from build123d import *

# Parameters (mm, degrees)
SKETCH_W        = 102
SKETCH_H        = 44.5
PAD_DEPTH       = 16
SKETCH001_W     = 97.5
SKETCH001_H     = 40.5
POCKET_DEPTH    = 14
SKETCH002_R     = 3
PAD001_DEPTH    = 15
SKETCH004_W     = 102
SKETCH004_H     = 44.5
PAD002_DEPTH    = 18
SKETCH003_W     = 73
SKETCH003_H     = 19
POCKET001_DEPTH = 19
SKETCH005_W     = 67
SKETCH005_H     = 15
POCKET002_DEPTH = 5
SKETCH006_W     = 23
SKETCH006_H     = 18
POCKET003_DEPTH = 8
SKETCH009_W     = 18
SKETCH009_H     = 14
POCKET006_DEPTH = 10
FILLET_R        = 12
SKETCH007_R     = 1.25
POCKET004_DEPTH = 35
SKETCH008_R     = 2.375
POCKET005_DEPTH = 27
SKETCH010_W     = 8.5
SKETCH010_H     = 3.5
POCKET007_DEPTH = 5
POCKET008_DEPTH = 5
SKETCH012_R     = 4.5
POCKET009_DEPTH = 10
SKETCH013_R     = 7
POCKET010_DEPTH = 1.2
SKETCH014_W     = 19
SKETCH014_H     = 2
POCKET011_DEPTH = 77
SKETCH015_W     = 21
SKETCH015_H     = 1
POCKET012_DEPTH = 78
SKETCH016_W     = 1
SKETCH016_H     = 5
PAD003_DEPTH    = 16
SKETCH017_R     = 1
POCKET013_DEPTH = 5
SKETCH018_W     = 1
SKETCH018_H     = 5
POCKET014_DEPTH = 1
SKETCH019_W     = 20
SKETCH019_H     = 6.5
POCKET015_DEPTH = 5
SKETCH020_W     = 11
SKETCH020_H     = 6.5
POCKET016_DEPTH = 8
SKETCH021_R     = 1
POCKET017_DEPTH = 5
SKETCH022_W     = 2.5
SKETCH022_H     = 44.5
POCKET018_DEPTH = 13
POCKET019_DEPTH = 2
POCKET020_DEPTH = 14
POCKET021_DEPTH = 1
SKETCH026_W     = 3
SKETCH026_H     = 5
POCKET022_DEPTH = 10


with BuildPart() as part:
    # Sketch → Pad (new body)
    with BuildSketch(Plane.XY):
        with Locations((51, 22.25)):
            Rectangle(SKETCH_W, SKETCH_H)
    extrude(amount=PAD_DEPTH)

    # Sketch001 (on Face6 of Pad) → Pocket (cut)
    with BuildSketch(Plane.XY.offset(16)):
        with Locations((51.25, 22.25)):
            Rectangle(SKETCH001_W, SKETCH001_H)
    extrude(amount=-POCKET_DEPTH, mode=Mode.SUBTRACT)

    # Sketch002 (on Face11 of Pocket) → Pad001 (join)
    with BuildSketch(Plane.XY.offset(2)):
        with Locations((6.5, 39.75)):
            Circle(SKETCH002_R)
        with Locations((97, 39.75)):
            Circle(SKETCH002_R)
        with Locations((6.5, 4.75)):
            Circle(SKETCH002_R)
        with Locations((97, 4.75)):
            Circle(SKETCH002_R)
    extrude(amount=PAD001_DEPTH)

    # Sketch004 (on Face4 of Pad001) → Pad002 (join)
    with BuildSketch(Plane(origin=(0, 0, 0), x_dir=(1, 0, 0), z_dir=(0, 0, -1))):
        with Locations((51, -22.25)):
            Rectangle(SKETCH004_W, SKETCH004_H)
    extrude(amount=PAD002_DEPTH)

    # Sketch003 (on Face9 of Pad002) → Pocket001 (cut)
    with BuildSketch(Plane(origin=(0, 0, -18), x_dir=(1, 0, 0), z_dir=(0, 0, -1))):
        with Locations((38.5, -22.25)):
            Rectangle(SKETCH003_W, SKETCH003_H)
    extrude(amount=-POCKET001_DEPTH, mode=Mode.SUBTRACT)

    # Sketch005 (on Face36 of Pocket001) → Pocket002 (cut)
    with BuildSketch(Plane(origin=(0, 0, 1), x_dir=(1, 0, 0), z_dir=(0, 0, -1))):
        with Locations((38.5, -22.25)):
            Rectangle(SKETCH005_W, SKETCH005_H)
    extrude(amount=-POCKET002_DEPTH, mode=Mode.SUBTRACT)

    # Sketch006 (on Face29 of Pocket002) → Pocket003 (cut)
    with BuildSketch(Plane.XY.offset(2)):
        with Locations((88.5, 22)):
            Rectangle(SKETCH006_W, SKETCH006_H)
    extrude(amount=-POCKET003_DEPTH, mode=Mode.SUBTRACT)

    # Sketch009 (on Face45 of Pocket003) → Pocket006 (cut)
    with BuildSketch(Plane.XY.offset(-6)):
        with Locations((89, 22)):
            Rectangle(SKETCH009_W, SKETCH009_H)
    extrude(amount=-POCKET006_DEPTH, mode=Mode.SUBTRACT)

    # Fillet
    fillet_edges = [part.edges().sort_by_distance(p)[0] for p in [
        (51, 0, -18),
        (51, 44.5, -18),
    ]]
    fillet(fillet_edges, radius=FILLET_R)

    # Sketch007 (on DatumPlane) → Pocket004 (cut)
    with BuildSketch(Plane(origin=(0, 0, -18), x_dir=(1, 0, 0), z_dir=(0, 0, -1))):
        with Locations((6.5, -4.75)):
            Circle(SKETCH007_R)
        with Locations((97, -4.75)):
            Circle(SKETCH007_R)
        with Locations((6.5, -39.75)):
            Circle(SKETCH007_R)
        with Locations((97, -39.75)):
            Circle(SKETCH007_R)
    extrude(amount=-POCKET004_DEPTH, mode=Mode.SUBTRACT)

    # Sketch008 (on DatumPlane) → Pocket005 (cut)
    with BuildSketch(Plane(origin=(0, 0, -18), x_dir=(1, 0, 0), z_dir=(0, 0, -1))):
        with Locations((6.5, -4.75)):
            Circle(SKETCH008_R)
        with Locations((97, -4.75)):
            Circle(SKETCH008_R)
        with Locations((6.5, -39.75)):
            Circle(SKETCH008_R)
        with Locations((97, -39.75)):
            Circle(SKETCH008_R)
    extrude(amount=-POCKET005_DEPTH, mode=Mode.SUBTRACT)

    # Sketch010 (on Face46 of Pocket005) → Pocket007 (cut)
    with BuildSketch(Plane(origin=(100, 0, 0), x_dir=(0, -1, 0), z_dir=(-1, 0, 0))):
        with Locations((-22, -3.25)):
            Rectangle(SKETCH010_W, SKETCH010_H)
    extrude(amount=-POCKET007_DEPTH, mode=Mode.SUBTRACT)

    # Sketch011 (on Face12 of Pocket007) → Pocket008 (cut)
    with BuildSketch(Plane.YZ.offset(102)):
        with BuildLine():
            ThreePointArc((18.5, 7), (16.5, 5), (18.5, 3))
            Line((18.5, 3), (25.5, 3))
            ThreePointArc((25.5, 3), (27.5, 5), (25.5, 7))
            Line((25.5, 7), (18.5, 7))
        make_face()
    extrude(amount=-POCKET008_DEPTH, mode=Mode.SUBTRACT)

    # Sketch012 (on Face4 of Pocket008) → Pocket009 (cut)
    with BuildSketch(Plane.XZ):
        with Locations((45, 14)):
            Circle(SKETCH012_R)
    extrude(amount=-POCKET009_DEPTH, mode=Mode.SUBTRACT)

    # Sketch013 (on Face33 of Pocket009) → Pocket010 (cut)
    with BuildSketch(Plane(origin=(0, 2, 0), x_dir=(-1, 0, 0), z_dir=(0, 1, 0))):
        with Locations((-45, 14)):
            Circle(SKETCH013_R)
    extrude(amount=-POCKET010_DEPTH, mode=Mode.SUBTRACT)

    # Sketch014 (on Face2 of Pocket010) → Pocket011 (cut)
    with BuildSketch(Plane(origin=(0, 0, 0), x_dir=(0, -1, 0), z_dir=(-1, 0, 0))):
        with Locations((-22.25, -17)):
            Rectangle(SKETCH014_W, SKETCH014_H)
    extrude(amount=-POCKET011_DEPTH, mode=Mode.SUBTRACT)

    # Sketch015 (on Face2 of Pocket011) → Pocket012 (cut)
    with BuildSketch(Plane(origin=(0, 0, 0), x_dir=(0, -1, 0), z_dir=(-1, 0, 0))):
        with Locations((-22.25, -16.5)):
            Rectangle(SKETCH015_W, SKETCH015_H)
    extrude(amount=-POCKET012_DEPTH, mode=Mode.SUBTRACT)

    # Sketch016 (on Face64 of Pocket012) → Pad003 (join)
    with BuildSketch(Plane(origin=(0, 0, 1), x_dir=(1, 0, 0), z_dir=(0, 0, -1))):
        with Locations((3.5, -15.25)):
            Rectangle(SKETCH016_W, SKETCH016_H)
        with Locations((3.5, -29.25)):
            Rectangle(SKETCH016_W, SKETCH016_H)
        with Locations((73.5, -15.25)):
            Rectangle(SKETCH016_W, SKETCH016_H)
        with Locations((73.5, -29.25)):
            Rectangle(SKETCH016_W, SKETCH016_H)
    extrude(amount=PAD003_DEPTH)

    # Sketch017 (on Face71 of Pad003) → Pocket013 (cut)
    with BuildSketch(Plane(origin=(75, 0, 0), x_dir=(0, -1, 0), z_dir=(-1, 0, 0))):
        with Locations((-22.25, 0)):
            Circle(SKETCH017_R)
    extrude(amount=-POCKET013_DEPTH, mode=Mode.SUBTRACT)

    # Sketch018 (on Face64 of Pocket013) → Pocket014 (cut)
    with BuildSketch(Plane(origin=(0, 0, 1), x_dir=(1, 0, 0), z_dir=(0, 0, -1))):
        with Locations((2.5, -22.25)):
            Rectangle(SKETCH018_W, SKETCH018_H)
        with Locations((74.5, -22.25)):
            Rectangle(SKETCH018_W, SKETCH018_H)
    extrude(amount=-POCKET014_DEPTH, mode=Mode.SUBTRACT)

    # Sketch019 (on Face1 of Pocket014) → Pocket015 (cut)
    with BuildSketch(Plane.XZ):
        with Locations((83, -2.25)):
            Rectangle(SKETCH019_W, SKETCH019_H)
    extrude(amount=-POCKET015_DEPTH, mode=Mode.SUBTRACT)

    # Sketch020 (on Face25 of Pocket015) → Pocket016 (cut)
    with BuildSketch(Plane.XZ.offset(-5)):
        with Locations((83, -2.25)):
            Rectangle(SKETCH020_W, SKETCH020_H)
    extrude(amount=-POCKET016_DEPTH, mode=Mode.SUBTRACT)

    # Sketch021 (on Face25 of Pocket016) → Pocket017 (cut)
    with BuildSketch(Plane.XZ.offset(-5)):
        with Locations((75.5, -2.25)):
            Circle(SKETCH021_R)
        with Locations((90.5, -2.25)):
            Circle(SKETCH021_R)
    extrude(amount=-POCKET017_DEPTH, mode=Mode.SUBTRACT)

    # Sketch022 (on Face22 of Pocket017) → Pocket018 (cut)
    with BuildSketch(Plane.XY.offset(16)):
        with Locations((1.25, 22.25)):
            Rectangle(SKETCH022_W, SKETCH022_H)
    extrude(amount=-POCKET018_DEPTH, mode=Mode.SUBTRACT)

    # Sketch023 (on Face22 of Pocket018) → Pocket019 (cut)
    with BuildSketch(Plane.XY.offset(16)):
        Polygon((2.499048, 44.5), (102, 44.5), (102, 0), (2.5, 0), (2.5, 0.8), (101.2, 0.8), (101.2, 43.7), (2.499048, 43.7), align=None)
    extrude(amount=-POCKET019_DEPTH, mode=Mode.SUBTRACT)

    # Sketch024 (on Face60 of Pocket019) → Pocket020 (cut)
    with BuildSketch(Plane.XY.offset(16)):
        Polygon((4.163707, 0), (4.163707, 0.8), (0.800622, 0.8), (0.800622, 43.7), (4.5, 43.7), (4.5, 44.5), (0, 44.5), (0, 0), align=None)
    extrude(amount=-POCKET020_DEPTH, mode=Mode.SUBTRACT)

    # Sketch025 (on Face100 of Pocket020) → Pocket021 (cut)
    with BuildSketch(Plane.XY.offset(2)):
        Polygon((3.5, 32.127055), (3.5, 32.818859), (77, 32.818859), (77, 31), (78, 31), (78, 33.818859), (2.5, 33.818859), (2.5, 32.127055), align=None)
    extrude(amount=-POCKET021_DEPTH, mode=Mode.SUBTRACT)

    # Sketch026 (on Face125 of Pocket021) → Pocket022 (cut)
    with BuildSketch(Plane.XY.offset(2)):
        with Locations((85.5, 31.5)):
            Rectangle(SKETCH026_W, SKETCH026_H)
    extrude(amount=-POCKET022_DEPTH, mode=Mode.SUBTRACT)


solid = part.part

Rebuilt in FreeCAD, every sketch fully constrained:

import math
import FreeCAD as App
import Part
import Sketcher

V = App.Vector


def edges_at(feature, points):
    """Names of the edges that pass closest to the given points."""
    edges = feature.Shape.Edges
    near = lambda p: min(range(len(edges)), key=lambda i: edges[i].distToShape(Part.Vertex(*p))[0])
    return sorted({f"Edge{near(p) + 1}" for p in points})

doc = App.newDocument("Part")
body = doc.addObject("PartDesign::Body", "Body")

sketch1 = body.newObject("Sketcher::SketchObject", "Sketch")
sketch1.AttachmentSupport = (doc.getObject("XY_Plane"), [""])
sketch1.MapMode = "FlatFace"
sketch1.addGeometry([
    Part.LineSegment(V(0, 44, 0), V(0, 0, 0)),
    Part.LineSegment(V(0, 0, 0), V(102, 0, 0)),
    Part.LineSegment(V(102, 0, 0), V(102, 44, 0)),
    Part.LineSegment(V(102, 44, 0), V(0, 44, 0)),
], False)
sketch1.addConstraint([
    Sketcher.Constraint("Coincident", 0, 2, 1, 1),
    Sketcher.Constraint("Coincident", 1, 2, 2, 1),
    Sketcher.Constraint("Coincident", 2, 2, 3, 1),
    Sketcher.Constraint("Coincident", 3, 2, 0, 1),
    Sketcher.Constraint("Vertical", 0),
    Sketcher.Constraint("Horizontal", 1),
    Sketcher.Constraint("Vertical", 2),
    Sketcher.Constraint("Horizontal", 3),
    Sketcher.Constraint("Coincident", 0, 2, -1, 1),
    Sketcher.Constraint("DistanceX", 1, 1, 1, 2, 102.0),
    Sketcher.Constraint("DistanceY", 0, 2, 0, 1, 44.5),
])
pad1 = body.newObject("PartDesign::Pad", "Pad")
pad1.Profile = sketch1
pad1.Length = 16

sketch2 = body.newObject("Sketcher::SketchObject", "Sketch001")
sketch2.AttachmentSupport = (doc.getObject("XY_Plane"), [""])
sketch2.MapMode = "FlatFace"
sketch2.AttachmentOffset = App.Placement(V(0, 0, 16), App.Rotation())
sketch2.addGeometry([
    Part.LineSegment(V(2, 42, 0), V(2, 2, 0)),
    Part.LineSegment(V(2, 2, 0), V(100, 2, 0)),
    Part.LineSegment(V(100, 2, 0), V(100, 42, 0)),
    Part.LineSegment(V(100, 42, 0), V(2, 42, 0)),
], False)
sketch2.addConstraint([
    Sketcher.Constraint("Coincident", 0, 2, 1, 1),
    Sketcher.Constraint("Coincident", 1, 2, 2, 1),
    Sketcher.Constraint("Coincident", 2, 2, 3, 1),
    Sketcher.Constraint("Coincident", 3, 2, 0, 1),
    Sketcher.Constraint("Vertical", 0),
    Sketcher.Constraint("Horizontal", 1),
    Sketcher.Constraint("Vertical", 2),
    Sketcher.Constraint("Horizontal", 3),
    Sketcher.Constraint("DistanceX", 1, 1, 1, 2, 97.5),
    Sketcher.Constraint("DistanceY", 0, 2, 0, 1, 40.5),
    Sketcher.Constraint("DistanceY", -1, 1, 0, 2, 2.0),
    Sketcher.Constraint("DistanceX", -1, 1, 1, 2, 100.0),
])
pocket1 = body.newObject("PartDesign::Pocket", "Pocket")
pocket1.Profile = sketch2
pocket1.Length = 14

sketch3 = body.newObject("Sketcher::SketchObject", "Sketch002")
sketch3.AttachmentSupport = (doc.getObject("XY_Plane"), [""])
sketch3.MapMode = "FlatFace"
sketch3.AttachmentOffset = App.Placement(V(0, 0, 2), App.Rotation())
sketch3.addGeometry([
    Part.Circle(V(6.5, 39.8, 0), V(0, 0, 1), 3),
    Part.Circle(V(97, 39.8, 0), V(0, 0, 1), 3),
    Part.Circle(V(6.5, 4.8, 0), V(0, 0, 1), 3),
    Part.Circle(V(97, 4.8, 0), V(0, 0, 1), 3),
], False)
sketch3.addConstraint([
    Sketcher.Constraint("Equal", 0, 1),
    Sketcher.Constraint("Equal", 1, 2),
    Sketcher.Constraint("Equal", 2, 3),
    Sketcher.Constraint("Horizontal", 0, 3, 1, 3),
    Sketcher.Constraint("Horizontal", 2, 3, 3, 3),
    Sketcher.Constraint("Vertical", 0, 3, 2, 3),
    Sketcher.Constraint("Vertical", 1, 3, 3, 3),
    Sketcher.Constraint("Diameter", 0, 6.0),
    Sketcher.Constraint("DistanceX", -1, 1, 1, 3, 97.0),
    Sketcher.Constraint("DistanceY", 2, 3, 0, 3, 35.0),
    Sketcher.Constraint("DistanceX", -1, 1, 0, 3, 6.5),
    Sketcher.Constraint("DistanceY", -1, 1, 0, 3, 39.75),
])
pad2 = body.newObject("PartDesign::Pad", "Pad001")
pad2.Profile = sketch3
pad2.Length = 15

sketch4 = body.newObject("Sketcher::SketchObject", "Sketch003")
sketch4.AttachmentSupport = (doc.getObject("XY_Plane"), [""])
sketch4.MapMode = "FlatFace"
sketch4.addGeometry([
    Part.LineSegment(V(0, 0, 0), V(0, 44, 0)),
    Part.LineSegment(V(0, 44, 0), V(102, 44, 0)),
    Part.LineSegment(V(102, 44, 0), V(102, 0, 0)),
    Part.LineSegment(V(102, 0, 0), V(0, 0, 0)),
], False)
sketch4.addConstraint([
    Sketcher.Constraint("Coincident", 0, 2, 1, 1),
    Sketcher.Constraint("Coincident", 1, 2, 2, 1),
    Sketcher.Constraint("Coincident", 2, 2, 3, 1),
    Sketcher.Constraint("Coincident", 3, 2, 0, 1),
    Sketcher.Constraint("Vertical", 0),
    Sketcher.Constraint("Horizontal", 1),
    Sketcher.Constraint("Vertical", 2),
    Sketcher.Constraint("Horizontal", 3),
    Sketcher.Constraint("Coincident", 3, 2, -1, 1),
    Sketcher.Constraint("DistanceX", 1, 1, 1, 2, 102.0),
    Sketcher.Constraint("DistanceY", 0, 1, 0, 2, 44.5),
])
pad3 = body.newObject("PartDesign::Pad", "Pad002")
pad3.Profile = sketch4
pad3.Length = 18
pad3.Reversed = True

sketch5 = body.newObject("Sketcher::SketchObject", "Sketch004")
sketch5.AttachmentSupport = (doc.getObject("XY_Plane"), [""])
sketch5.MapMode = "FlatFace"
sketch5.AttachmentOffset = App.Placement(V(0, 0, -18), App.Rotation())
sketch5.addGeometry([
    Part.LineSegment(V(2, 13, 0), V(2, 32, 0)),
    Part.LineSegment(V(2, 32, 0), V(75, 32, 0)),
    Part.LineSegment(V(75, 32, 0), V(75, 13, 0)),
    Part.LineSegment(V(75, 13, 0), V(2, 13, 0)),
], False)
sketch5.addConstraint([
    Sketcher.Constraint("Coincident", 0, 2, 1, 1),
    Sketcher.Constraint("Coincident", 1, 2, 2, 1),
    Sketcher.Constraint("Coincident", 2, 2, 3, 1),
    Sketcher.Constraint("Coincident", 3, 2, 0, 1),
    Sketcher.Constraint("Vertical", 0),
    Sketcher.Constraint("Horizontal", 1),
    Sketcher.Constraint("Vertical", 2),
    Sketcher.Constraint("Horizontal", 3),
    Sketcher.Constraint("DistanceX", 1, 1, 1, 2, 73.0),
    Sketcher.Constraint("DistanceY", 0, 1, 0, 2, 19.0),
    Sketcher.Constraint("DistanceX", -1, 1, 0, 2, 2.0),
    Sketcher.Constraint("DistanceY", -1, 1, 0, 2, 31.75),
])
pocket2 = body.newObject("PartDesign::Pocket", "Pocket001")
pocket2.Profile = sketch5
pocket2.Length = 19
pocket2.Reversed = True

sketch6 = body.newObject("Sketcher::SketchObject", "Sketch005")
sketch6.AttachmentSupport = (doc.getObject("XY_Plane"), [""])
sketch6.MapMode = "FlatFace"
sketch6.AttachmentOffset = App.Placement(V(0, 0, 1), App.Rotation())
sketch6.addGeometry([
    Part.LineSegment(V(5, 15, 0), V(5, 30, 0)),
    Part.LineSegment(V(5, 30, 0), V(72, 30, 0)),
    Part.LineSegment(V(72, 30, 0), V(72, 15, 0)),
    Part.LineSegment(V(72, 15, 0), V(5, 15, 0)),
], False)
sketch6.addConstraint([
    Sketcher.Constraint("Coincident", 0, 2, 1, 1),
    Sketcher.Constraint("Coincident", 1, 2, 2, 1),
    Sketcher.Constraint("Coincident", 2, 2, 3, 1),
    Sketcher.Constraint("Coincident", 3, 2, 0, 1),
    Sketcher.Constraint("Vertical", 0),
    Sketcher.Constraint("Horizontal", 1),
    Sketcher.Constraint("Vertical", 2),
    Sketcher.Constraint("Horizontal", 3),
    Sketcher.Constraint("DistanceX", 1, 1, 1, 2, 67.0),
    Sketcher.Constraint("DistanceY", 0, 1, 0, 2, 15.0),
    Sketcher.Constraint("DistanceX", -1, 1, 0, 2, 5.0),
    Sketcher.Constraint("DistanceY", -1, 1, 0, 2, 29.75),
])
pocket3 = body.newObject("PartDesign::Pocket", "Pocket002")
pocket3.Profile = sketch6
pocket3.Length = 5
pocket3.Reversed = True

sketch7 = body.newObject("Sketcher::SketchObject", "Sketch006")
sketch7.AttachmentSupport = (doc.getObject("XY_Plane"), [""])
sketch7.MapMode = "FlatFace"
sketch7.AttachmentOffset = App.Placement(V(0, 0, 2), App.Rotation())
sketch7.addGeometry([
    Part.LineSegment(V(77, 31, 0), V(77, 13, 0)),
    Part.LineSegment(V(77, 13, 0), V(100, 13, 0)),
    Part.LineSegment(V(100, 13, 0), V(100, 31, 0)),
    Part.LineSegment(V(100, 31, 0), V(77, 31, 0)),
], False)
sketch7.addConstraint([
    Sketcher.Constraint("Coincident", 0, 2, 1, 1),
    Sketcher.Constraint("Coincident", 1, 2, 2, 1),
    Sketcher.Constraint("Coincident", 2, 2, 3, 1),
    Sketcher.Constraint("Coincident", 3, 2, 0, 1),
    Sketcher.Constraint("Vertical", 0),
    Sketcher.Constraint("Horizontal", 1),
    Sketcher.Constraint("Vertical", 2),
    Sketcher.Constraint("Horizontal", 3),
    Sketcher.Constraint("DistanceX", 1, 1, 1, 2, 23.0),
    Sketcher.Constraint("DistanceY", 0, 2, 0, 1, 18.0),
    Sketcher.Constraint("DistanceX", -1, 1, 0, 2, 77.0),
    Sketcher.Constraint("DistanceY", -1, 1, 0, 2, 13.0),
])
pocket4 = body.newObject("PartDesign::Pocket", "Pocket003")
pocket4.Profile = sketch7
pocket4.Length = 8

sketch8 = body.newObject("Sketcher::SketchObject", "Sketch007")
sketch8.AttachmentSupport = (doc.getObject("XY_Plane"), [""])
sketch8.MapMode = "FlatFace"
sketch8.AttachmentOffset = App.Placement(V(0, 0, -6), App.Rotation())
sketch8.addGeometry([
    Part.LineSegment(V(80, 29, 0), V(80, 15, 0)),
    Part.LineSegment(V(80, 15, 0), V(98, 15, 0)),
    Part.LineSegment(V(98, 15, 0), V(98, 29, 0)),
    Part.LineSegment(V(98, 29, 0), V(80, 29, 0)),
], False)
sketch8.addConstraint([
    Sketcher.Constraint("Coincident", 0, 2, 1, 1),
    Sketcher.Constraint("Coincident", 1, 2, 2, 1),
    Sketcher.Constraint("Coincident", 2, 2, 3, 1),
    Sketcher.Constraint("Coincident", 3, 2, 0, 1),
    Sketcher.Constraint("Vertical", 0),
    Sketcher.Constraint("Horizontal", 1),
    Sketcher.Constraint("Vertical", 2),
    Sketcher.Constraint("Horizontal", 3),
    Sketcher.Constraint("DistanceX", 1, 1, 1, 2, 18.0),
    Sketcher.Constraint("DistanceY", 0, 2, 0, 1, 14.0),
    Sketcher.Constraint("DistanceX", -1, 1, 0, 2, 80.0),
    Sketcher.Constraint("DistanceY", -1, 1, 0, 2, 15.0),
])
pocket5 = body.newObject("PartDesign::Pocket", "Pocket004")
pocket5.Profile = sketch8
pocket5.Length = 10
doc.recompute()

fillet = body.newObject("PartDesign::Fillet", "Fillet")
fillet.Base = (pocket5, edges_at(pocket5, [(51, 0, -18), (51, 44.5, -18)]))
fillet.Radius = 12

sketch9 = body.newObject("Sketcher::SketchObject", "Sketch008")
sketch9.AttachmentSupport = (doc.getObject("XY_Plane"), [""])
sketch9.MapMode = "FlatFace"
sketch9.AttachmentOffset = App.Placement(V(0, 0, -18), App.Rotation())
sketch9.addGeometry([
    Part.Circle(V(6.5, 4.8, 0), V(0, 0, 1), 1.2),
    Part.Circle(V(97, 4.8, 0), V(0, 0, 1), 1.2),
    Part.Circle(V(6.5, 39.8, 0), V(0, 0, 1), 1.2),
    Part.Circle(V(97, 39.8, 0), V(0, 0, 1), 1.2),
], False)
sketch9.addConstraint([
    Sketcher.Constraint("Equal", 0, 1),
    Sketcher.Constraint("Equal", 1, 2),
    Sketcher.Constraint("Equal", 2, 3),
    Sketcher.Constraint("Horizontal", 0, 3, 1, 3),
    Sketcher.Constraint("Horizontal", 2, 3, 3, 3),
    Sketcher.Constraint("Vertical", 0, 3, 2, 3),
    Sketcher.Constraint("Vertical", 1, 3, 3, 3),
    Sketcher.Constraint("Diameter", 0, 2.5),
    Sketcher.Constraint("DistanceX", -1, 1, 1, 3, 97.0),
    Sketcher.Constraint("DistanceY", 0, 3, 2, 3, 35.0),
    Sketcher.Constraint("DistanceX", -1, 1, 0, 3, 6.5),
    Sketcher.Constraint("DistanceY", -1, 1, 0, 3, 4.75),
])
pocket6 = body.newObject("PartDesign::Pocket", "Pocket005")
pocket6.Profile = sketch9
pocket6.Length = 35
pocket6.Reversed = True

sketch10 = body.newObject("Sketcher::SketchObject", "Sketch009")
sketch10.AttachmentSupport = (doc.getObject("XY_Plane"), [""])
sketch10.MapMode = "FlatFace"
sketch10.AttachmentOffset = App.Placement(V(0, 0, -18), App.Rotation())
sketch10.addGeometry([
    Part.Circle(V(6.5, 4.8, 0), V(0, 0, 1), 2.4),
    Part.Circle(V(97, 4.8, 0), V(0, 0, 1), 2.4),
    Part.Circle(V(6.5, 39.8, 0), V(0, 0, 1), 2.4),
    Part.Circle(V(97, 39.8, 0), V(0, 0, 1), 2.4),
], False)
sketch10.addConstraint([
    Sketcher.Constraint("Equal", 0, 1),
    Sketcher.Constraint("Equal", 1, 2),
    Sketcher.Constraint("Equal", 2, 3),
    Sketcher.Constraint("Horizontal", 0, 3, 1, 3),
    Sketcher.Constraint("Horizontal", 2, 3, 3, 3),
    Sketcher.Constraint("Vertical", 0, 3, 2, 3),
    Sketcher.Constraint("Vertical", 1, 3, 3, 3),
    Sketcher.Constraint("Diameter", 0, 4.75),
    Sketcher.Constraint("DistanceX", -1, 1, 1, 3, 97.0),
    Sketcher.Constraint("DistanceY", 0, 3, 2, 3, 35.0),
    Sketcher.Constraint("DistanceX", -1, 1, 0, 3, 6.5),
    Sketcher.Constraint("DistanceY", -1, 1, 0, 3, 4.75),
])
pocket7 = body.newObject("PartDesign::Pocket", "Pocket006")
pocket7.Profile = sketch10
pocket7.Length = 27
pocket7.Reversed = True

sketch11 = body.newObject("Sketcher::SketchObject", "Sketch010")
sketch11.AttachmentSupport = (doc.getObject("YZ_Plane"), [""])
sketch11.MapMode = "FlatFace"
sketch11.AttachmentOffset = App.Placement(V(0, 0, 100), App.Rotation())
sketch11.addGeometry([
    Part.LineSegment(V(26.2, -1.5, 0), V(26.2, -5, 0)),
    Part.LineSegment(V(26.2, -5, 0), V(17.8, -5, 0)),
    Part.LineSegment(V(17.8, -5, 0), V(17.8, -1.5, 0)),
    Part.LineSegment(V(17.8, -1.5, 0), V(26.2, -1.5, 0)),
], False)
sketch11.addConstraint([
    Sketcher.Constraint("Coincident", 0, 2, 1, 1),
    Sketcher.Constraint("Coincident", 1, 2, 2, 1),
    Sketcher.Constraint("Coincident", 2, 2, 3, 1),
    Sketcher.Constraint("Coincident", 3, 2, 0, 1),
    Sketcher.Constraint("Vertical", 0),
    Sketcher.Constraint("Horizontal", 1),
    Sketcher.Constraint("Vertical", 2),
    Sketcher.Constraint("Horizontal", 3),
    Sketcher.Constraint("DistanceX", 1, 2, 1, 1, 8.5),
    Sketcher.Constraint("DistanceY", 0, 2, 0, 1, 3.5),
    Sketcher.Constraint("DistanceY", 0, 2, -1, 1, 5.0),
    Sketcher.Constraint("DistanceX", -1, 1, 0, 2, 26.25),
])
pocket8 = body.newObject("PartDesign::Pocket", "Pocket007")
pocket8.Profile = sketch11
pocket8.Length = 5
pocket8.Reversed = True

sketch12 = body.newObject("Sketcher::SketchObject", "Sketch011")
sketch12.AttachmentSupport = (doc.getObject("YZ_Plane"), [""])
sketch12.MapMode = "FlatFace"
sketch12.AttachmentOffset = App.Placement(V(0, 0, 102), App.Rotation())
sketch12.addGeometry([
    Part.ArcOfCircle(Part.Circle(V(18.5, 5, 0), V(0, 0, 1), 2), math.radians(90), math.radians(270)),
    Part.LineSegment(V(18.5, 3, 0), V(25.5, 3, 0)),
    Part.ArcOfCircle(Part.Circle(V(25.5, 5, 0), V(0, 0, 1), 2), math.radians(-90), math.radians(90)),
    Part.LineSegment(V(25.5, 7, 0), V(18.5, 7, 0)),
], False)
sketch12.addConstraint([
    Sketcher.Constraint("Tangent", 0, 2, 1, 1),
    Sketcher.Constraint("Tangent", 1, 2, 2, 1),
    Sketcher.Constraint("Tangent", 2, 2, 3, 1),
    Sketcher.Constraint("Tangent", 3, 2, 0, 1),
    Sketcher.Constraint("Horizontal", 1),
    Sketcher.Constraint("Horizontal", 3),
    Sketcher.Constraint("Radius", 0, 2.0),
    Sketcher.Constraint("DistanceX", 1, 1, 1, 2, 7.0),
    Sketcher.Constraint("DistanceY", -1, 1, 0, 3, 5.0),
    Sketcher.Constraint("DistanceX", -1, 1, 0, 3, 18.5),
])
pocket9 = body.newObject("PartDesign::Pocket", "Pocket008")
pocket9.Profile = sketch12
pocket9.Length = 5

sketch13 = body.newObject("Sketcher::SketchObject", "Sketch012")
sketch13.AttachmentSupport = (doc.getObject("XZ_Plane"), [""])
sketch13.MapMode = "FlatFace"
sketch13.addGeometry(Part.Circle(V(45, 14, 0), V(0, 0, 1), 4.5), False)
sketch13.addConstraint([
    Sketcher.Constraint("Diameter", 0, 9.0),
    Sketcher.Constraint("DistanceX", -1, 1, 0, 3, 45.0),
    Sketcher.Constraint("DistanceY", -1, 1, 0, 3, 14.0),
])
pocket10 = body.newObject("PartDesign::Pocket", "Pocket009")
pocket10.Profile = sketch13
pocket10.Length = 10

sketch14 = body.newObject("Sketcher::SketchObject", "Sketch013")
sketch14.AttachmentSupport = (doc.getObject("XZ_Plane"), [""])
sketch14.MapMode = "FlatFace"
sketch14.AttachmentOffset = App.Placement(V(0, 0, -2), App.Rotation())
sketch14.addGeometry(Part.Circle(V(45, 14, 0), V(0, 0, 1), 7), False)
sketch14.addConstraint([
    Sketcher.Constraint("Diameter", 0, 14.0),
    Sketcher.Constraint("DistanceX", -1, 1, 0, 3, 45.0),
    Sketcher.Constraint("DistanceY", -1, 1, 0, 3, 14.0),
])
pocket11 = body.newObject("PartDesign::Pocket", "Pocket010")
pocket11.Profile = sketch14
pocket11.Length = 1.2
pocket11.Reversed = True

sketch15 = body.newObject("Sketcher::SketchObject", "Sketch014")
sketch15.AttachmentSupport = (doc.getObject("YZ_Plane"), [""])
sketch15.MapMode = "FlatFace"
sketch15.addGeometry([
    Part.LineSegment(V(31.8, -16, 0), V(31.8, -18, 0)),
    Part.LineSegment(V(31.8, -18, 0), V(12.8, -18, 0)),
    Part.LineSegment(V(12.8, -18, 0), V(12.8, -16, 0)),
    Part.LineSegment(V(12.8, -16, 0), V(31.8, -16, 0)),
], False)
sketch15.addConstraint([
    Sketcher.Constraint("Coincident", 0, 2, 1, 1),
    Sketcher.Constraint("Coincident", 1, 2, 2, 1),
    Sketcher.Constraint("Coincident", 2, 2, 3, 1),
    Sketcher.Constraint("Coincident", 3, 2, 0, 1),
    Sketcher.Constraint("Vertical", 0),
    Sketcher.Constraint("Horizontal", 1),
    Sketcher.Constraint("Vertical", 2),
    Sketcher.Constraint("Horizontal", 3),
    Sketcher.Constraint("DistanceX", 1, 2, 1, 1, 19.0),
    Sketcher.Constraint("DistanceY", 0, 2, 0, 1, 2.0),
    Sketcher.Constraint("DistanceY", 0, 2, -1, 1, 18.0),
    Sketcher.Constraint("DistanceX", -1, 1, 0, 2, 31.75),
])
pocket12 = body.newObject("PartDesign::Pocket", "Pocket011")
pocket12.Profile = sketch15
pocket12.Length = 77
pocket12.Reversed = True

sketch16 = body.newObject("Sketcher::SketchObject", "Sketch015")
sketch16.AttachmentSupport = (doc.getObject("YZ_Plane"), [""])
sketch16.MapMode = "FlatFace"
sketch16.addGeometry([
    Part.LineSegment(V(32.8, -16, 0), V(32.8, -17, 0)),
    Part.LineSegment(V(32.8, -17, 0), V(11.8, -17, 0)),
    Part.LineSegment(V(11.8, -17, 0), V(11.8, -16, 0)),
    Part.LineSegment(V(11.8, -16, 0), V(32.8, -16, 0)),
], False)
sketch16.addConstraint([
    Sketcher.Constraint("Coincident", 0, 2, 1, 1),
    Sketcher.Constraint("Coincident", 1, 2, 2, 1),
    Sketcher.Constraint("Coincident", 2, 2, 3, 1),
    Sketcher.Constraint("Coincident", 3, 2, 0, 1),
    Sketcher.Constraint("Vertical", 0),
    Sketcher.Constraint("Horizontal", 1),
    Sketcher.Constraint("Vertical", 2),
    Sketcher.Constraint("Horizontal", 3),
    Sketcher.Constraint("DistanceX", 1, 2, 1, 1, 21.0),
    Sketcher.Constraint("DistanceY", 0, 2, 0, 1, 1.0),
    Sketcher.Constraint("DistanceY", 0, 2, -1, 1, 17.0),
    Sketcher.Constraint("DistanceX", -1, 1, 0, 2, 32.75),
])
pocket13 = body.newObject("PartDesign::Pocket", "Pocket012")
pocket13.Profile = sketch16
pocket13.Length = 78
pocket13.Reversed = True

sketch17 = body.newObject("Sketcher::SketchObject", "Sketch016")
sketch17.AttachmentSupport = (doc.getObject("XY_Plane"), [""])
sketch17.MapMode = "FlatFace"
sketch17.AttachmentOffset = App.Placement(V(0, 0, 1), App.Rotation())
sketch17.addGeometry([
    Part.LineSegment(V(3, 12.8, 0), V(3, 17.8, 0)),
    Part.LineSegment(V(3, 17.8, 0), V(4, 17.8, 0)),
    Part.LineSegment(V(4, 17.8, 0), V(4, 12.8, 0)),
    Part.LineSegment(V(4, 12.8, 0), V(3, 12.8, 0)),
    Part.LineSegment(V(3, 26.8, 0), V(3, 31.8, 0)),
    Part.LineSegment(V(3, 31.8, 0), V(4, 31.8, 0)),
    Part.LineSegment(V(4, 31.8, 0), V(4, 26.8, 0)),
    Part.LineSegment(V(4, 26.8, 0), V(3, 26.8, 0)),
    Part.LineSegment(V(73, 12.8, 0), V(73, 17.8, 0)),
    Part.LineSegment(V(73, 17.8, 0), V(74, 17.8, 0)),
    Part.LineSegment(V(74, 17.8, 0), V(74, 12.8, 0)),
    Part.LineSegment(V(74, 12.8, 0), V(73, 12.8, 0)),
    Part.LineSegment(V(73, 26.8, 0), V(73, 31.8, 0)),
    Part.LineSegment(V(73, 31.8, 0), V(74, 31.8, 0)),
    Part.LineSegment(V(74, 31.8, 0), V(74, 26.8, 0)),
    Part.LineSegment(V(74, 26.8, 0), V(73, 26.8, 0)),
], False)
sketch17.addConstraint([
    Sketcher.Constraint("Coincident", 0, 2, 1, 1),
    Sketcher.Constraint("Coincident", 1, 2, 2, 1),
    Sketcher.Constraint("Coincident", 2, 2, 3, 1),
    Sketcher.Constraint("Coincident", 3, 2, 0, 1),
    Sketcher.Constraint("Coincident", 4, 2, 5, 1),
    Sketcher.Constraint("Coincident", 5, 2, 6, 1),
    Sketcher.Constraint("Coincident", 6, 2, 7, 1),
    Sketcher.Constraint("Coincident", 7, 2, 4, 1),
    Sketcher.Constraint("Coincident", 8, 2, 9, 1),
    Sketcher.Constraint("Coincident", 9, 2, 10, 1),
    Sketcher.Constraint("Coincident", 10, 2, 11, 1),
    Sketcher.Constraint("Coincident", 11, 2, 8, 1),
    Sketcher.Constraint("Coincident", 12, 2, 13, 1),
    Sketcher.Constraint("Coincident", 13, 2, 14, 1),
    Sketcher.Constraint("Coincident", 14, 2, 15, 1),
    Sketcher.Constraint("Coincident", 15, 2, 12, 1),
    Sketcher.Constraint("Vertical", 0),
    Sketcher.Constraint("Horizontal", 1),
    Sketcher.Constraint("Vertical", 2),
    Sketcher.Constraint("Horizontal", 3),
    Sketcher.Constraint("Vertical", 4),
    Sketcher.Constraint("Horizontal", 5),
    Sketcher.Constraint("Vertical", 6),
    Sketcher.Constraint("Horizontal", 7),
    Sketcher.Constraint("Vertical", 8),
    Sketcher.Constraint("Horizontal", 9),
    Sketcher.Constraint("Vertical", 10),
    Sketcher.Constraint("Horizontal", 11),
    Sketcher.Constraint("Vertical", 12),
    Sketcher.Constraint("Horizontal", 13),
    Sketcher.Constraint("Vertical", 14),
    Sketcher.Constraint("Horizontal", 15),
    Sketcher.Constraint("Horizontal", 1, 2, 8, 2),
    Sketcher.Constraint("Horizontal", 3, 2, 10, 2),
    Sketcher.Constraint("Horizontal", 5, 2, 12, 2),
    Sketcher.Constraint("Horizontal", 7, 2, 14, 2),
    Sketcher.Constraint("Vertical", 3, 2, 4, 2),
    Sketcher.Constraint("Vertical", 2, 2, 5, 2),
    Sketcher.Constraint("Vertical", 11, 2, 12, 2),
    Sketcher.Constraint("Vertical", 10, 2, 13, 2),
    Sketcher.Constraint("Equal", 7, 9),
    Sketcher.Constraint("Equal", 2, 4),
    Sketcher.Constraint("DistanceX", 1, 1, 1, 2, 1.0),
    Sketcher.Constraint("DistanceY", 0, 1, 0, 2, 5.0),
    Sketcher.Constraint("DistanceX", -1, 1, 0, 2, 3.0),
    Sketcher.Constraint("DistanceX", -1, 1, 8, 2, 73.0),
    Sketcher.Constraint("DistanceY", 0, 2, 4, 2, 14.0),
    Sketcher.Constraint("DistanceY", -1, 1, 0, 2, 17.75),
])
pad4 = body.newObject("PartDesign::Pad", "Pad003")
pad4.Profile = sketch17
pad4.Length = 16
pad4.Reversed = True

sketch18 = body.newObject("Sketcher::SketchObject", "Sketch017")
sketch18.AttachmentSupport = (doc.getObject("YZ_Plane"), [""])
sketch18.MapMode = "FlatFace"
sketch18.AttachmentOffset = App.Placement(V(0, 0, 75), App.Rotation())
sketch18.addGeometry(Part.Circle(V(22.2, 0, 0), V(0, 0, 1), 1), False)
sketch18.addConstraint([
    Sketcher.Constraint("PointOnObject", 0, 3, -1),
    Sketcher.Constraint("Diameter", 0, 2.0),
    Sketcher.Constraint("DistanceX", -1, 1, 0, 3, 22.25),
])
pocket14 = body.newObject("PartDesign::Pocket", "Pocket013")
pocket14.Profile = sketch18
pocket14.Length = 5
pocket14.Reversed = True

sketch19 = body.newObject("Sketcher::SketchObject", "Sketch018")
sketch19.AttachmentSupport = (doc.getObject("XY_Plane"), [""])
sketch19.MapMode = "FlatFace"
sketch19.AttachmentOffset = App.Placement(V(0, 0, 1), App.Rotation())
sketch19.addGeometry([
    Part.LineSegment(V(2, 19.8, 0), V(2, 24.8, 0)),
    Part.LineSegment(V(2, 24.8, 0), V(3, 24.8, 0)),
    Part.LineSegment(V(3, 24.8, 0), V(3, 19.8, 0)),
    Part.LineSegment(V(3, 19.8, 0), V(2, 19.8, 0)),
    Part.LineSegment(V(74, 19.8, 0), V(74, 24.8, 0)),
    Part.LineSegment(V(74, 24.8, 0), V(75, 24.8, 0)),
    Part.LineSegment(V(75, 24.8, 0), V(75, 19.8, 0)),
    Part.LineSegment(V(75, 19.8, 0), V(74, 19.8, 0)),
], False)
sketch19.addConstraint([
    Sketcher.Constraint("Coincident", 0, 2, 1, 1),
    Sketcher.Constraint("Coincident", 1, 2, 2, 1),
    Sketcher.Constraint("Coincident", 2, 2, 3, 1),
    Sketcher.Constraint("Coincident", 3, 2, 0, 1),
    Sketcher.Constraint("Coincident", 4, 2, 5, 1),
    Sketcher.Constraint("Coincident", 5, 2, 6, 1),
    Sketcher.Constraint("Coincident", 6, 2, 7, 1),
    Sketcher.Constraint("Coincident", 7, 2, 4, 1),
    Sketcher.Constraint("Vertical", 0),
    Sketcher.Constraint("Horizontal", 1),
    Sketcher.Constraint("Vertical", 2),
    Sketcher.Constraint("Horizontal", 3),
    Sketcher.Constraint("Vertical", 4),
    Sketcher.Constraint("Horizontal", 5),
    Sketcher.Constraint("Vertical", 6),
    Sketcher.Constraint("Horizontal", 7),
    Sketcher.Constraint("Horizontal", 1, 2, 4, 2),
    Sketcher.Constraint("Horizontal", 3, 2, 6, 2),
    Sketcher.Constraint("Equal", 3, 5),
    Sketcher.Constraint("DistanceX", 1, 1, 1, 2, 1.0),
    Sketcher.Constraint("DistanceY", 0, 1, 0, 2, 5.0),
    Sketcher.Constraint("DistanceX", -1, 1, 0, 2, 2.0),
    Sketcher.Constraint("DistanceX", -1, 1, 4, 2, 74.0),
    Sketcher.Constraint("DistanceY", -1, 1, 0, 2, 24.75),
])
pocket15 = body.newObject("PartDesign::Pocket", "Pocket014")
pocket15.Profile = sketch19
pocket15.Length = 1
pocket15.Reversed = True

sketch20 = body.newObject("Sketcher::SketchObject", "Sketch019")
sketch20.AttachmentSupport = (doc.getObject("XZ_Plane"), [""])
sketch20.MapMode = "FlatFace"
sketch20.addGeometry([
    Part.LineSegment(V(73, 1, 0), V(73, -6, 0)),
    Part.LineSegment(V(73, -6, 0), V(93, -6, 0)),
    Part.LineSegment(V(93, -6, 0), V(93, 1, 0)),
    Part.LineSegment(V(93, 1, 0), V(73, 1, 0)),
], False)
sketch20.addConstraint([
    Sketcher.Constraint("Coincident", 0, 2, 1, 1),
    Sketcher.Constraint("Coincident", 1, 2, 2, 1),
    Sketcher.Constraint("Coincident", 2, 2, 3, 1),
    Sketcher.Constraint("Coincident", 3, 2, 0, 1),
    Sketcher.Constraint("Vertical", 0),
    Sketcher.Constraint("Horizontal", 1),
    Sketcher.Constraint("Vertical", 2),
    Sketcher.Constraint("Horizontal", 3),
    Sketcher.Constraint("DistanceX", 1, 1, 1, 2, 20.0),
    Sketcher.Constraint("DistanceY", 0, 2, 0, 1, 6.5),
    Sketcher.Constraint("DistanceX", -1, 1, 0, 2, 73.0),
    Sketcher.Constraint("DistanceY", -1, 1, 2, 2, 1.0),
])
pocket16 = body.newObject("PartDesign::Pocket", "Pocket015")
pocket16.Profile = sketch20
pocket16.Length = 5

sketch21 = body.newObject("Sketcher::SketchObject", "Sketch020")
sketch21.AttachmentSupport = (doc.getObject("XZ_Plane"), [""])
sketch21.MapMode = "FlatFace"
sketch21.AttachmentOffset = App.Placement(V(0, 0, -5), App.Rotation())
sketch21.addGeometry([
    Part.LineSegment(V(78, 1, 0), V(78, -6, 0)),
    Part.LineSegment(V(78, -6, 0), V(88, -6, 0)),
    Part.LineSegment(V(88, -6, 0), V(88, 1, 0)),
    Part.LineSegment(V(88, 1, 0), V(78, 1, 0)),
], False)
sketch21.addConstraint([
    Sketcher.Constraint("Coincident", 0, 2, 1, 1),
    Sketcher.Constraint("Coincident", 1, 2, 2, 1),
    Sketcher.Constraint("Coincident", 2, 2, 3, 1),
    Sketcher.Constraint("Coincident", 3, 2, 0, 1),
    Sketcher.Constraint("Vertical", 0),
    Sketcher.Constraint("Horizontal", 1),
    Sketcher.Constraint("Vertical", 2),
    Sketcher.Constraint("Horizontal", 3),
    Sketcher.Constraint("DistanceX", 1, 1, 1, 2, 11.0),
    Sketcher.Constraint("DistanceY", 0, 2, 0, 1, 6.5),
    Sketcher.Constraint("DistanceY", -1, 1, 2, 2, 1.0),
    Sketcher.Constraint("DistanceX", -1, 1, 0, 2, 77.5),
])
pocket17 = body.newObject("PartDesign::Pocket", "Pocket016")
pocket17.Profile = sketch21
pocket17.Length = 8

sketch22 = body.newObject("Sketcher::SketchObject", "Sketch021")
sketch22.AttachmentSupport = (doc.getObject("XZ_Plane"), [""])
sketch22.MapMode = "FlatFace"
sketch22.AttachmentOffset = App.Placement(V(0, 0, -5), App.Rotation())
sketch22.addGeometry([
    Part.Circle(V(75.5, -2.2, 0), V(0, 0, 1), 1),
    Part.Circle(V(90.5, -2.2, 0), V(0, 0, 1), 1),
], False)
sketch22.addConstraint([
    Sketcher.Constraint("Equal", 0, 1),
    Sketcher.Constraint("Horizontal", 0, 3, 1, 3),
    Sketcher.Constraint("Diameter", 0, 2.0),
    Sketcher.Constraint("DistanceX", 0, 3, 1, 3, 15.0),
    Sketcher.Constraint("DistanceX", -1, 1, 0, 3, 75.5),
    Sketcher.Constraint("DistanceY", 0, 3, -1, 1, 2.25),
])
pocket18 = body.newObject("PartDesign::Pocket", "Pocket017")
pocket18.Profile = sketch22
pocket18.Length = 5

sketch23 = body.newObject("Sketcher::SketchObject", "Sketch022")
sketch23.AttachmentSupport = (doc.getObject("XY_Plane"), [""])
sketch23.MapMode = "FlatFace"
sketch23.AttachmentOffset = App.Placement(V(0, 0, 16), App.Rotation())
sketch23.addGeometry([
    Part.LineSegment(V(0, 44.5, 0), V(0, 0, 0)),
    Part.LineSegment(V(0, 0, 0), V(2.5, 0, 0)),
    Part.LineSegment(V(2.5, 0, 0), V(2.5, 44.5, 0)),
    Part.LineSegment(V(2.5, 44.5, 0), V(0, 44.5, 0)),
], False)
sketch23.addConstraint([
    Sketcher.Constraint("Coincident", 0, 2, 1, 1),
    Sketcher.Constraint("Coincident", 1, 2, 2, 1),
    Sketcher.Constraint("Coincident", 2, 2, 3, 1),
    Sketcher.Constraint("Coincident", 3, 2, 0, 1),
    Sketcher.Constraint("Vertical", 0),
    Sketcher.Constraint("Horizontal", 1),
    Sketcher.Constraint("Vertical", 2),
    Sketcher.Constraint("Horizontal", 3),
    Sketcher.Constraint("Coincident", 0, 2, -1, 1),
    Sketcher.Constraint("DistanceX", 1, 1, 1, 2, 2.5),
    Sketcher.Constraint("DistanceY", 0, 2, 0, 1, 44.5),
])
pocket19 = body.newObject("PartDesign::Pocket", "Pocket018")
pocket19.Profile = sketch23
pocket19.Length = 13

sketch24 = body.newObject("Sketcher::SketchObject", "Sketch023")
sketch24.AttachmentSupport = (doc.getObject("XY_Plane"), [""])
sketch24.MapMode = "FlatFace"
sketch24.AttachmentOffset = App.Placement(V(0, 0, 16), App.Rotation())
sketch24.addGeometry([
    Part.LineSegment(V(102, 44.5, 0), V(2.5, 44.5, 0)),
    Part.LineSegment(V(2.5, 44.5, 0), V(2.5, 43.7, 0)),
    Part.LineSegment(V(2.5, 43.7, 0), V(101.2, 43.7, 0)),
    Part.LineSegment(V(101.2, 43.7, 0), V(101.2, 0.8, 0)),
    Part.LineSegment(V(101.2, 0.8, 0), V(2.5, 0.8, 0)),
    Part.LineSegment(V(2.5, 0.8, 0), V(2.5, 0, 0)),
    Part.LineSegment(V(2.5, 0, 0), V(102, 0, 0)),
    Part.LineSegment(V(102, 0, 0), V(102, 44.5, 0)),
], False)
sketch24.addConstraint([
    Sketcher.Constraint("Coincident", 0, 2, 1, 1),
    Sketcher.Constraint("Coincident", 1, 2, 2, 1),
    Sketcher.Constraint("Coincident", 2, 2, 3, 1),
    Sketcher.Constraint("Coincident", 3, 2, 4, 1),
    Sketcher.Constraint("Coincident", 4, 2, 5, 1),
    Sketcher.Constraint("Coincident", 5, 2, 6, 1),
    Sketcher.Constraint("Coincident", 6, 2, 7, 1),
    Sketcher.Constraint("Coincident", 7, 2, 0, 1),
    Sketcher.Constraint("Horizontal", 0),
    Sketcher.Constraint("Vertical", 1),
    Sketcher.Constraint("Horizontal", 2),
    Sketcher.Constraint("Vertical", 3),
    Sketcher.Constraint("Horizontal", 4),
    Sketcher.Constraint("Vertical", 5),
    Sketcher.Constraint("Horizontal", 6),
    Sketcher.Constraint("Vertical", 7),
    Sketcher.Constraint("PointOnObject", 5, 2, -1),
    Sketcher.Constraint("Equal", 1, 5),
    Sketcher.Constraint("DistanceX", 4, 2, 4, 1, 98.7),
    Sketcher.Constraint("DistanceX", 6, 1, 6, 2, 99.5),
    Sketcher.Constraint("DistanceY", 1, 2, 1, 1, 0.8),
    Sketcher.Constraint("DistanceY", 3, 2, 3, 1, 42.9),
    Sketcher.Constraint("DistanceX", -1, 1, 6, 2, 102.0),
    Sketcher.Constraint("DistanceX", 0, 2, 0, 1, 99.500952),
])
pocket20 = body.newObject("PartDesign::Pocket", "Pocket019")
pocket20.Profile = sketch24
pocket20.Length = 2

sketch25 = body.newObject("Sketcher::SketchObject", "Sketch024")
sketch25.AttachmentSupport = (doc.getObject("XY_Plane"), [""])
sketch25.MapMode = "FlatFace"
sketch25.AttachmentOffset = App.Placement(V(0, 0, 16), App.Rotation())
sketch25.addGeometry([
    Part.LineSegment(V(4.2, 0, 0), V(4.2, 0.8, 0)),
    Part.LineSegment(V(4.2, 0.8, 0), V(0.8, 0.8, 0)),
    Part.LineSegment(V(0.8, 0.8, 0), V(0.8, 43.7, 0)),
    Part.LineSegment(V(0.8, 43.7, 0), V(4.5, 43.7, 0)),
    Part.LineSegment(V(4.5, 43.7, 0), V(4.5, 44.5, 0)),
    Part.LineSegment(V(4.5, 44.5, 0), V(0, 44.5, 0)),
    Part.LineSegment(V(0, 44.5, 0), V(0, 0, 0)),
    Part.LineSegment(V(0, 0, 0), V(4.2, 0, 0)),
], False)
sketch25.addConstraint([
    Sketcher.Constraint("Coincident", 0, 2, 1, 1),
    Sketcher.Constraint("Coincident", 1, 2, 2, 1),
    Sketcher.Constraint("Coincident", 2, 2, 3, 1),
    Sketcher.Constraint("Coincident", 3, 2, 4, 1),
    Sketcher.Constraint("Coincident", 4, 2, 5, 1),
    Sketcher.Constraint("Coincident", 5, 2, 6, 1),
    Sketcher.Constraint("Coincident", 6, 2, 7, 1),
    Sketcher.Constraint("Coincident", 7, 2, 0, 1),
    Sketcher.Constraint("Vertical", 0),
    Sketcher.Constraint("Horizontal", 1),
    Sketcher.Constraint("Vertical", 2),
    Sketcher.Constraint("Horizontal", 3),
    Sketcher.Constraint("Vertical", 4),
    Sketcher.Constraint("Horizontal", 5),
    Sketcher.Constraint("Vertical", 6),
    Sketcher.Constraint("Horizontal", 7),
    Sketcher.Constraint("Coincident", 6, 2, -1, 1),
    Sketcher.Constraint("Equal", 0, 4),
    Sketcher.Constraint("DistanceX", 5, 2, 5, 1, 4.5),
    Sketcher.Constraint("DistanceY", 0, 1, 0, 2, 0.8),
    Sketcher.Constraint("DistanceY", 2, 1, 2, 2, 42.9),
    Sketcher.Constraint("DistanceX", 3, 1, 3, 2, 3.699378),
    Sketcher.Constraint("DistanceX", 1, 2, 1, 1, 3.363085),
])
pocket21 = body.newObject("PartDesign::Pocket", "Pocket020")
pocket21.Profile = sketch25
pocket21.Length = 14

sketch26 = body.newObject("Sketcher::SketchObject", "Sketch025")
sketch26.AttachmentSupport = (doc.getObject("XY_Plane"), [""])
sketch26.MapMode = "FlatFace"
sketch26.AttachmentOffset = App.Placement(V(0, 0, 2), App.Rotation())
sketch26.addGeometry([
    Part.LineSegment(V(3.5, 32.1, 0), V(3.5, 32.8, 0)),
    Part.LineSegment(V(3.5, 32.8, 0), V(77, 32.8, 0)),
    Part.LineSegment(V(77, 32.8, 0), V(77, 31, 0)),
    Part.LineSegment(V(77, 31, 0), V(78, 31, 0)),
    Part.LineSegment(V(78, 31, 0), V(78, 33.8, 0)),
    Part.LineSegment(V(78, 33.8, 0), V(2.5, 33.8, 0)),
    Part.LineSegment(V(2.5, 33.8, 0), V(2.5, 32.1, 0)),
    Part.LineSegment(V(2.5, 32.1, 0), V(3.5, 32.1, 0)),
], False)
sketch26.addConstraint([
    Sketcher.Constraint("Coincident", 0, 2, 1, 1),
    Sketcher.Constraint("Coincident", 1, 2, 2, 1),
    Sketcher.Constraint("Coincident", 2, 2, 3, 1),
    Sketcher.Constraint("Coincident", 3, 2, 4, 1),
    Sketcher.Constraint("Coincident", 4, 2, 5, 1),
    Sketcher.Constraint("Coincident", 5, 2, 6, 1),
    Sketcher.Constraint("Coincident", 6, 2, 7, 1),
    Sketcher.Constraint("Coincident", 7, 2, 0, 1),
    Sketcher.Constraint("Vertical", 0),
    Sketcher.Constraint("Horizontal", 1),
    Sketcher.Constraint("Vertical", 2),
    Sketcher.Constraint("Horizontal", 3),
    Sketcher.Constraint("Vertical", 4),
    Sketcher.Constraint("Horizontal", 5),
    Sketcher.Constraint("Vertical", 6),
    Sketcher.Constraint("Horizontal", 7),
    Sketcher.Constraint("Equal", 3, 7),
    Sketcher.Constraint("DistanceX", 3, 1, 3, 2, 1.0),
    Sketcher.Constraint("DistanceX", 1, 1, 1, 2, 73.5),
    Sketcher.Constraint("DistanceX", -1, 1, 1, 2, 77.0),
    Sketcher.Constraint("DistanceY", -1, 1, 2, 2, 31.0),
    Sketcher.Constraint("DistanceY", 1, 2, 4, 2, 1.0),
    Sketcher.Constraint("DistanceY", 2, 2, 2, 1, 1.818859),
    Sketcher.Constraint("DistanceY", 0, 1, 0, 2, 0.691804),
])
pocket22 = body.newObject("PartDesign::Pocket", "Pocket021")
pocket22.Profile = sketch26
pocket22.Length = 1

sketch27 = body.newObject("Sketcher::SketchObject", "Sketch026")
sketch27.AttachmentSupport = (doc.getObject("XY_Plane"), [""])
sketch27.MapMode = "FlatFace"
sketch27.AttachmentOffset = App.Placement(V(0, 0, 2), App.Rotation())
sketch27.addGeometry([
    Part.LineSegment(V(84, 34, 0), V(84, 29, 0)),
    Part.LineSegment(V(84, 29, 0), V(87, 29, 0)),
    Part.LineSegment(V(87, 29, 0), V(87, 34, 0)),
    Part.LineSegment(V(87, 34, 0), V(84, 34, 0)),
], False)
sketch27.addConstraint([
    Sketcher.Constraint("Coincident", 0, 2, 1, 1),
    Sketcher.Constraint("Coincident", 1, 2, 2, 1),
    Sketcher.Constraint("Coincident", 2, 2, 3, 1),
    Sketcher.Constraint("Coincident", 3, 2, 0, 1),
    Sketcher.Constraint("Vertical", 0),
    Sketcher.Constraint("Horizontal", 1),
    Sketcher.Constraint("Vertical", 2),
    Sketcher.Constraint("Horizontal", 3),
    Sketcher.Constraint("DistanceX", 1, 1, 1, 2, 3.0),
    Sketcher.Constraint("DistanceY", 0, 2, 0, 1, 5.0),
    Sketcher.Constraint("DistanceX", -1, 1, 0, 2, 84.0),
    Sketcher.Constraint("DistanceY", -1, 1, 0, 2, 29.0),
])
pocket23 = body.newObject("PartDesign::Pocket", "Pocket022")
pocket23.Profile = sketch27
pocket23.Length = 10

doc.recompute()
